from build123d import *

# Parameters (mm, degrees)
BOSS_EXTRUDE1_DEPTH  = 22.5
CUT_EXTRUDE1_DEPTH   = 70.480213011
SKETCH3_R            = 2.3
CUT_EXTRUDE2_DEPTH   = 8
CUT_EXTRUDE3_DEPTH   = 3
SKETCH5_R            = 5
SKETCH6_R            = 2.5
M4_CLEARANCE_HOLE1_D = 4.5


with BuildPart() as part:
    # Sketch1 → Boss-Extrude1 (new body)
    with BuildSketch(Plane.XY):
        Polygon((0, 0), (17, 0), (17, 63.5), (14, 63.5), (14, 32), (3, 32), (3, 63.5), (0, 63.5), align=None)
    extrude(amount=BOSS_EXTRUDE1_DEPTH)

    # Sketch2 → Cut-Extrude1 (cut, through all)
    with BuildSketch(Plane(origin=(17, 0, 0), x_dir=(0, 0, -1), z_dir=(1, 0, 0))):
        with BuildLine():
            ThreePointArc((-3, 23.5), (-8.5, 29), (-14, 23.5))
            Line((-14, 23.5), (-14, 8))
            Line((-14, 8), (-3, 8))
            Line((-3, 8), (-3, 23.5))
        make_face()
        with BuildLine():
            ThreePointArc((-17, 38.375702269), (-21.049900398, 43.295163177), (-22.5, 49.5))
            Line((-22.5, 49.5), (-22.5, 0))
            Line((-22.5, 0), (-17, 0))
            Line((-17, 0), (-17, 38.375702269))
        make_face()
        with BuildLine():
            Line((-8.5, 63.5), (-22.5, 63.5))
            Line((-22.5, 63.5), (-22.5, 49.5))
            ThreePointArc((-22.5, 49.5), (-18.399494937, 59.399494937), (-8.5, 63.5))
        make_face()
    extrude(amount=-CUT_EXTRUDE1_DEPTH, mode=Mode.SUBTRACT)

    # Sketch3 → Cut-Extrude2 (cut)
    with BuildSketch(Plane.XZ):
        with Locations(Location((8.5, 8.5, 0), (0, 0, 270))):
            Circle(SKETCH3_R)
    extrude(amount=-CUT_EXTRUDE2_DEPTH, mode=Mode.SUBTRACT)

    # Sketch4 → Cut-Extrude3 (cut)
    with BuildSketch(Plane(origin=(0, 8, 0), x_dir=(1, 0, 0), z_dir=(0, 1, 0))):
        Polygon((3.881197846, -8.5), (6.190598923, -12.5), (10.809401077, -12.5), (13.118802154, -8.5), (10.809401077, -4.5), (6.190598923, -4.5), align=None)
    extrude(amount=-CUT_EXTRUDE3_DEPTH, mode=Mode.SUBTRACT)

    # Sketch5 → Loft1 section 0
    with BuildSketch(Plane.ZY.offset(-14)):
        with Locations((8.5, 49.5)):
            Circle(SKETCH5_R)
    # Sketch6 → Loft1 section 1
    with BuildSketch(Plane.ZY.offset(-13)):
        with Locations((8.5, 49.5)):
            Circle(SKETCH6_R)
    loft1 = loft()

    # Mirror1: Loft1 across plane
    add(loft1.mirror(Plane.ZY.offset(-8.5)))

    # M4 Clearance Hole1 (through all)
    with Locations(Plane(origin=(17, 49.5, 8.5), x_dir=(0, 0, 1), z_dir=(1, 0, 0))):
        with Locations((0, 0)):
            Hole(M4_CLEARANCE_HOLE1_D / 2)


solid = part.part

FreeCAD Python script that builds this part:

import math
import FreeCAD as App
import Part
import Sketcher
from FreeCAD import Vector
Q = App.Units.Quantity

doc = App.newDocument("Part")
params = doc.addObject("Spreadsheet::Sheet", "Params")
for row, (alias, value) in enumerate([
    ("sketch1_width", "17 mm"),
    ("sketch1_width2", "3 mm"),
    ("sketch1_height", "63.5 mm"),
    ("sketch1_height2", "31.5 mm"),
    ("pad1_length", "22.5 mm"),
    ("sketch2_radius", "14 mm"),
    ("sketch2_radius2", "5.5 mm"),
    ("sketch2_width", "15.5 mm"),
    ("sketch2_width2", "49.5 mm"),
    ("sketch2_height", "5.5 mm"),
    ("sketch3_diameter", "4.6 mm"),
    ("pocket2_length", "8 mm"),
    ("pocket3_length", "3 mm"),
    ("sketch5_diameter", "10 mm"),
    ("sketch6_diameter", "5 mm"),
    ("sketch7_diameter", "4.5 mm"),
    ("hole_diameter", "4.5 mm"),
], start=1):
    params.set(f"A{row}", alias)
    params.set(f"B{row}", "=" + value)
    params.setAlias(f"B{row}", alias)

body = doc.addObject("PartDesign::Body", "Body")

sketch1 = body.newObject("Sketcher::SketchObject", "Sketch")
sketch1.AttachmentSupport = (doc.getObject("XY_Plane"), [""])
sketch1.MapMode = "FlatFace"
sketch1.addGeometry([
    Part.LineSegment(Vector(0, 0, 0), Vector(17, 0, 0)),
    Part.LineSegment(Vector(17, 0, 0), Vector(17, 63.5, 0)),
    Part.LineSegment(Vector(17, 63.5, 0), Vector(14, 63.5, 0)),
    Part.LineSegment(Vector(14, 63.5, 0), Vector(14, 32, 0)),
    Part.LineSegment(Vector(14, 32, 0), Vector(3, 32, 0)),
    Part.LineSegment(Vector(3, 32, 0), Vector(3, 63.5, 0)),
    Part.LineSegment(Vector(3, 63.5, 0), Vector(0, 63.5, 0)),
    Part.LineSegment(Vector(0, 63.5, 0), Vector(0, 0, 0)),
], False)
sketch1.addConstraint([
    Sketcher.Constraint("Coincident", 0, 2, 1, 1),
    Sketcher.Constraint("Coincident", 1, 2, 2, 1),
    Sketcher.Constraint("Coincident", 2, 2, 3, 1),
    Sketcher.Constraint("Coincident", 3, 2, 4, 1),
    Sketcher.Constraint("Coincident", 4, 2, 5, 1),
    Sketcher.Constraint("Coincident", 5, 2, 6, 1),
    Sketcher.Constraint("Coincident", 6, 2, 7, 1),
    Sketcher.Constraint("Coincident", 7, 2, 0, 1),
    Sketcher.Constraint("Horizontal", 0),
    Sketcher.Constraint("Vertical", 1),
    Sketcher.Constraint("Horizontal", 2),
    Sketcher.Constraint("Vertical", 3),
    Sketcher.Constraint("Horizontal", 4),
    Sketcher.Constraint("Vertical", 5),
    Sketcher.Constraint("Horizontal", 6),
    Sketcher.Constraint("Vertical", 7),
    Sketcher.Constraint("Coincident", 7, 2, -1, 1),
    Sketcher.Constraint("Horizontal", 2, 2, 5, 2),
    Sketcher.Constraint("Equal", 2, 6),
    Sketcher.Constraint("DistanceX", 0, 1, 0, 2, 17.0),
    Sketcher.Constraint("DistanceX", 2, 2, 2, 1, 3.0),
    Sketcher.Constraint("DistanceY", 1, 1, 1, 2, 63.5),
    Sketcher.Constraint("DistanceY", 3, 2, 3, 1, 31.5),
])
sketch1.setExpression("Constraints[19]", "Params.sketch1_width")
sketch1.setExpression("Constraints[20]", "Params.sketch1_width2")
sketch1.setExpression("Constraints[21]", "Params.sketch1_height")
sketch1.setExpression("Constraints[22]", "Params.sketch1_height2")
pad1 = body.newObject("PartDesign::Pad", "Pad")
pad1.Profile = sketch1
pad1.setExpression("Length", "Params.pad1_length")

sketch2 = body.newObject("Sketcher::SketchObject", "Sketch001")
sketch2.AttachmentSupport = (doc.getObject("YZ_Plane"), [""])
sketch2.MapMode = "FlatFace"
sketch2.AttachmentOffset = App.Placement(Vector(0, 0, 17), App.Rotation())
sketch2.addGeometry([
    Part.ArcOfCircle(Part.Circle(Vector(24, 8, 0), Vector(0, 0, 1), 6), math.radians(-90), math.radians(90)),
    Part.LineSegment(Vector(24, 14, 0), Vector(8, 14, 0)),
    Part.LineSegment(Vector(8, 14, 0), Vector(8, 3, 0)),
    Part.LineSegment(Vector(8, 3, 0), Vector(24, 3, 0)),
    Part.ArcOfCircle(Part.Circle(Vector(50, 8, 0), Vector(0, 0, 1), 14), math.radians(90), math.radians(143)),
    Part.LineSegment(Vector(50, 22, 0), Vector(0, 22, 0)),
    Part.LineSegment(Vector(0, 22, 0), Vector(0, 17, 0)),
    Part.LineSegment(Vector(0, 17, 0), Vector(38, 17, 0)),
    Part.LineSegment(Vector(64, 8, 0), Vector(64, 22, 0)),
    Part.LineSegment(Vector(64, 22, 0), Vector(50, 22, 0)),
    Part.ArcOfCircle(Part.Circle(Vector(50, 9, 0), Vector(0, 0, 1), 14), math.radians(0), math.radians(90)),
], False)
sketch2.addConstraint([
    Sketcher.Constraint("Tangent", 0, 2, 1, 1),
    Sketcher.Constraint("Coincident", 1, 2, 2, 1),
    Sketcher.Constraint("Coincident", 2, 2, 3, 1),
    Sketcher.Constraint("Tangent", 3, 2, 0, 1),
    Sketcher.Constraint("Tangent", 4, 1, 5, 1),
    Sketcher.Constraint("Coincident", 5, 2, 6, 1),
    Sketcher.Constraint("Coincident", 6, 2, 7, 1),
    Sketcher.Constraint("Coincident", 7, 2, 4, 2),
    Sketcher.Constraint("Coincident", 8, 2, 9, 1),
    Sketcher.Constraint("Tangent", 9, 2, 10, 2),
    Sketcher.Constraint("Tangent", 10, 1, 8, 1),
    Sketcher.Constraint("Horizontal", 1),
    Sketcher.Constraint("Vertical", 2),
    Sketcher.Constraint("Horizontal", 3),
    Sketcher.Constraint("Horizontal", 5),
    Sketcher.Constraint("Vertical", 6),
    Sketcher.Constraint("Horizontal", 7),
    Sketcher.Constraint("Vertical", 8),
    Sketcher.Constraint("Horizontal", 9),
    Sketcher.Constraint("Coincident", 10, 3, 4, 3),
    Sketcher.Constraint("Equal", 4, 10),
    Sketcher.Constraint("PointOnObject", 5, 2, -2),
    Sketcher.Constraint("Horizontal", 0, 3, 4, 3),
    Sketcher.Constraint("Radius", 4, 14.0),
    Sketcher.Constraint("Radius", 0, 5.5),
    Sketcher.Constraint("DistanceX", 1, 2, 1, 1, 15.5),
    Sketcher.Constraint("DistanceX", 5, 2, 5, 1, 49.5),
    Sketcher.Constraint("DistanceY", 6, 2, 6, 1, 5.5),
    Sketcher.Constraint("DistanceY", -1, 1, 0, 2, 14.0),
    Sketcher.Constraint("DistanceX", -1, 1, 1, 2, 8.0),
])
sketch2.setExpression("Constraints[23]", "Params.sketch2_radius")
sketch2.setExpression("Constraints[24]", "Params.sketch2_radius2")
sketch2.setExpression("Constraints[25]", "Params.sketch2_width")
sketch2.setExpression("Constraints[26]", "Params.sketch2_width2")
sketch2.setExpression("Constraints[27]", "Params.sketch2_height")
pocket1 = body.newObject("PartDesign::Pocket", "Pocket")
pocket1.Profile = sketch2
pocket1.Type = "ThroughAll"

sketch3 = body.newObject("Sketcher::SketchObject", "Sketch002")
sketch3.AttachmentSupport = (doc.getObject("XZ_Plane"), [""])
sketch3.MapMode = "FlatFace"
sketch3.addGeometry(Part.Circle(Vector(8.5, 8.5, 0), Vector(0, 0, 1), 2.3), False)
sketch3.addConstraint([
    Sketcher.Constraint("Diameter", 0, 4.6),
    Sketcher.Constraint("DistanceX", -1, 1, 0, 3, 8.5),
    Sketcher.Constraint("DistanceY", -1, 1, 0, 3, 8.5),
])
sketch3.setExpression("Constraints[0]", "Params.sketch3_diameter")
pocket2 = body.newObject("PartDesign::Pocket", "Pocket001")
pocket2.Profile = sketch3
pocket2.setExpression("Length", "Params.pocket2_length")

sketch4 = body.newObject("Sketcher::SketchObject", "Sketch003")
sketch4.AttachmentSupport = (doc.getObject("XZ_Plane"), [""])
sketch4.MapMode = "FlatFace"
sketch4.AttachmentOffset = App.Placement(Vector(0, 0, -8), App.Rotation())
sketch4.addGeometry([
    Part.LineSegment(Vector(3.9, 8.5, 0), Vector(6.2, 12.5, 0)),
    Part.LineSegment(Vector(6.2, 12.5, 0), Vector(10.8, 12.5, 0)),
    Part.LineSegment(Vector(10.8, 12.5, 0), Vector(13.1, 8.5, 0)),
    Part.LineSegment(Vector(13.1, 8.5, 0), Vector(10.8, 4.5, 0)),
    Part.LineSegment(Vector(10.8, 4.5, 0), Vector(6.2, 4.5, 0)),
    Part.LineSegment(Vector(6.2, 4.5, 0), Vector(3.9, 8.5, 0)),
], False)
sketch4.addConstraint([
    Sketcher.Constraint("Coincident", 0, 2, 1, 1),
    Sketcher.Constraint("Coincident", 1, 2, 2, 1),
    Sketcher.Constraint("Coincident", 2, 2, 3, 1),
    Sketcher.Constraint("Coincident", 3, 2, 4, 1),
    Sketcher.Constraint("Coincident", 4, 2, 5, 1),
    Sketcher.Constraint("Coincident", 5, 2, 0, 1),
    Sketcher.Constraint("Horizontal", 1),
    Sketcher.Constraint("Horizontal", 4),
    Sketcher.Constraint("Parallel", 0, 3),
    Sketcher.Constraint("Parallel", 2, 5),
    Sketcher.Constraint("Horizontal", 2, 2, 5, 2),
    Sketcher.Constraint("Vertical", 1, 2, 3, 2),
    Sketcher.Constraint("Vertical", 0, 2, 4, 2),
    Sketcher.Constraint("Angle", 0, Q("60 deg")),
    Sketcher.Constraint("DistanceY", 2, 2, 1, 2, 4.0),
    Sketcher.Constraint("DistanceY", -1, 1, 0, 2, 12.5),
    Sketcher.Constraint("DistanceX", -1, 1, 0, 2, 6.190599),
    Sketcher.Constraint("DistanceX", -1, 1, 1, 2, 10.809401),
])
pocket3 = body.newObject("PartDesign::Pocket", "Pocket002")
pocket3.Profile = sketch4
pocket3.setExpression("Length", "Params.pocket3_length")
pocket3.Reversed = True

sketch5 = body.newObject("Sketcher::SketchObject", "Sketch004")
sketch5.AttachmentSupport = (doc.getObject("YZ_Plane"), [""])
sketch5.MapMode = "FlatFace"
sketch5.AttachmentOffset = App.Placement(Vector(0, 0, 14), App.Rotation())
sketch5.addGeometry(Part.Circle(Vector(50, 8, 0), Vector(0, 0, 1), 5), False)
sketch5.addConstraint([
    Sketcher.Constraint("Diameter", 0, 10.0),
    Sketcher.Constraint("DistanceX", -1, 1, 0, 3, 49.5),
    Sketcher.Constraint("DistanceY", -1, 1, 0, 3, 8.5),
])
sketch5.setExpression("Constraints[0]", "Params.sketch5_diameter")

sketch6 = body.newObject("Sketcher::SketchObject", "Sketch005")
sketch6.AttachmentSupport = (doc.getObject("YZ_Plane"), [""])
sketch6.MapMode = "FlatFace"
sketch6.AttachmentOffset = App.Placement(Vector(0, 0, 13), App.Rotation())
sketch6.addGeometry(Part.Circle(Vector(49.5, 8.5, 0), Vector(0, 0, 1), 2.5), False)
sketch6.addConstraint([
    Sketcher.Constraint("Diameter", 0, 5.0),
    Sketcher.Constraint("DistanceX", -1, 1, 0, 3, 49.5),
    Sketcher.Constraint("DistanceY", -1, 1, 0, 3, 8.5),
])
sketch6.setExpression("Constraints[0]", "Params.sketch6_diameter")

additiveloft = body.newObject("PartDesign::AdditiveLoft", "AdditiveLoft")
additiveloft.Profile = sketch5
additiveloft.Sections = [sketch6]
doc.recompute()

datumplane = body.newObject("PartDesign::Plane", "DatumPlane")
datumplane.AttachmentSupport = (doc.getObject("YZ_Plane"), [""])
datumplane.MapMode = "FlatFace"
datumplane.AttachmentOffset = App.Placement(Vector(0, 0, 8.5), App.Rotation())
mirrored = body.newObject("PartDesign::Mirrored", "Mirrored")
mirrored.Originals = [additiveloft]
mirrored.MirrorPlane = (datumplane, [""])
body.Tip = mirrored

sketch7 = body.newObject("Sketcher::SketchObject", "Sketch006")
sketch7.AttachmentSupport = (doc.getObject("YZ_Plane"), [""])
sketch7.MapMode = "FlatFace"
sketch7.AttachmentOffset = App.Placement(Vector(0, 0, 17), App.Rotation())
sketch7.addGeometry(Part.Circle(Vector(49.5, 8.5, 0), Vector(0, 0, 1), 2.2), False)
sketch7.addConstraint([
    Sketcher.Constraint("Diameter", 0, 4.5),
    Sketcher.Constraint("DistanceX", -1, 1, 0, 3, 49.5),
    Sketcher.Constraint("DistanceY", -1, 1, 0, 3, 8.5),
])
sketch7.setExpression("Constraints[0]", "Params.sketch7_diameter")
doc.recompute()
hole = body.newObject("PartDesign::Hole", "Hole")
hole.Profile = sketch7
hole.ThreadType = "None"
hole.setExpression("Diameter", "Params.hole_diameter")
hole.DepthType = "ThroughAll"

doc.recompute()
